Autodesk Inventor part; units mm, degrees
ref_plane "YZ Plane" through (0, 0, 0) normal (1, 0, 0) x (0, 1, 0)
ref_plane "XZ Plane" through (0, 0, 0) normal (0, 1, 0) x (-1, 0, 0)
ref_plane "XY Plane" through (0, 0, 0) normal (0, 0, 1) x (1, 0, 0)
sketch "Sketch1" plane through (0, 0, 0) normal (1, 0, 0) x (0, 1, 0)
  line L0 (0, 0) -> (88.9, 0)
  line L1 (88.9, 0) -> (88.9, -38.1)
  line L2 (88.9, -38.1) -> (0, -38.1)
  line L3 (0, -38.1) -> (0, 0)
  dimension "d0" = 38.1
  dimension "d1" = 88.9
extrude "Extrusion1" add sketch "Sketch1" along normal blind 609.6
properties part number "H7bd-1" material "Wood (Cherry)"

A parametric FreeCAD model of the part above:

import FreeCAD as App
import Part
import Sketcher
Q = App.Units.Quantity

doc = App.newDocument("Part")
body = doc.addObject("PartDesign::Body", "Body")

sketch1 = body.newObject("Sketcher::SketchObject", "Sketch")
sketch1.AttachmentSupport = (doc.getObject("YZ_Plane"), [""])
sketch1.MapMode = "FlatFace"
sketch1.addGeometry(Part.LineSegment(App.Vector(89, 0, 0), App.Vector(0, 0, 0)), False)
sketch1.addGeometry(Part.LineSegment(App.Vector(0, 0, 0), App.Vector(0, -38, 0)), False)
sketch1.addGeometry(Part.LineSegment(App.Vector(0, -38, 0), App.Vector(89, -38, 0)), False)
sketch1.addGeometry(Part.LineSegment(App.Vector(89, -38, 0), App.Vector(89, 0, 0)), False)
sketch1.addConstraint(Sketcher.Constraint("Coincident", 0, 2, 1, 1))
sketch1.addConstraint(Sketcher.Constraint("Coincident", 1, 2, 2, 1))
sketch1.addConstraint(Sketcher.Constraint("Coincident", 2, 2, 3, 1))
sketch1.addConstraint(Sketcher.Constraint("Coincident", 3, 2, 0, 1))
sketch1.addConstraint(Sketcher.Constraint("Horizontal", 0))
sketch1.addConstraint(Sketcher.Constraint("Vertical", 1))
sketch1.addConstraint(Sketcher.Constraint("Horizontal", 2))
sketch1.addConstraint(Sketcher.Constraint("Vertical", 3))
sketch1.addConstraint(Sketcher.Constraint("Coincident", 0, 2, -1, 1))
sketch1.addConstraint(Sketcher.Constraint("DistanceX", 0, 2, 0, 1, Q("3.5 in")))
sketch1.addConstraint(Sketcher.Constraint("DistanceY", 1, 2, 1, 1, Q("1.5 in")))
pad1 = body.newObject("PartDesign::Pad", "Pad")
pad1.Profile = sketch1
pad1.Length = Q("24 in")

doc.recompute()
